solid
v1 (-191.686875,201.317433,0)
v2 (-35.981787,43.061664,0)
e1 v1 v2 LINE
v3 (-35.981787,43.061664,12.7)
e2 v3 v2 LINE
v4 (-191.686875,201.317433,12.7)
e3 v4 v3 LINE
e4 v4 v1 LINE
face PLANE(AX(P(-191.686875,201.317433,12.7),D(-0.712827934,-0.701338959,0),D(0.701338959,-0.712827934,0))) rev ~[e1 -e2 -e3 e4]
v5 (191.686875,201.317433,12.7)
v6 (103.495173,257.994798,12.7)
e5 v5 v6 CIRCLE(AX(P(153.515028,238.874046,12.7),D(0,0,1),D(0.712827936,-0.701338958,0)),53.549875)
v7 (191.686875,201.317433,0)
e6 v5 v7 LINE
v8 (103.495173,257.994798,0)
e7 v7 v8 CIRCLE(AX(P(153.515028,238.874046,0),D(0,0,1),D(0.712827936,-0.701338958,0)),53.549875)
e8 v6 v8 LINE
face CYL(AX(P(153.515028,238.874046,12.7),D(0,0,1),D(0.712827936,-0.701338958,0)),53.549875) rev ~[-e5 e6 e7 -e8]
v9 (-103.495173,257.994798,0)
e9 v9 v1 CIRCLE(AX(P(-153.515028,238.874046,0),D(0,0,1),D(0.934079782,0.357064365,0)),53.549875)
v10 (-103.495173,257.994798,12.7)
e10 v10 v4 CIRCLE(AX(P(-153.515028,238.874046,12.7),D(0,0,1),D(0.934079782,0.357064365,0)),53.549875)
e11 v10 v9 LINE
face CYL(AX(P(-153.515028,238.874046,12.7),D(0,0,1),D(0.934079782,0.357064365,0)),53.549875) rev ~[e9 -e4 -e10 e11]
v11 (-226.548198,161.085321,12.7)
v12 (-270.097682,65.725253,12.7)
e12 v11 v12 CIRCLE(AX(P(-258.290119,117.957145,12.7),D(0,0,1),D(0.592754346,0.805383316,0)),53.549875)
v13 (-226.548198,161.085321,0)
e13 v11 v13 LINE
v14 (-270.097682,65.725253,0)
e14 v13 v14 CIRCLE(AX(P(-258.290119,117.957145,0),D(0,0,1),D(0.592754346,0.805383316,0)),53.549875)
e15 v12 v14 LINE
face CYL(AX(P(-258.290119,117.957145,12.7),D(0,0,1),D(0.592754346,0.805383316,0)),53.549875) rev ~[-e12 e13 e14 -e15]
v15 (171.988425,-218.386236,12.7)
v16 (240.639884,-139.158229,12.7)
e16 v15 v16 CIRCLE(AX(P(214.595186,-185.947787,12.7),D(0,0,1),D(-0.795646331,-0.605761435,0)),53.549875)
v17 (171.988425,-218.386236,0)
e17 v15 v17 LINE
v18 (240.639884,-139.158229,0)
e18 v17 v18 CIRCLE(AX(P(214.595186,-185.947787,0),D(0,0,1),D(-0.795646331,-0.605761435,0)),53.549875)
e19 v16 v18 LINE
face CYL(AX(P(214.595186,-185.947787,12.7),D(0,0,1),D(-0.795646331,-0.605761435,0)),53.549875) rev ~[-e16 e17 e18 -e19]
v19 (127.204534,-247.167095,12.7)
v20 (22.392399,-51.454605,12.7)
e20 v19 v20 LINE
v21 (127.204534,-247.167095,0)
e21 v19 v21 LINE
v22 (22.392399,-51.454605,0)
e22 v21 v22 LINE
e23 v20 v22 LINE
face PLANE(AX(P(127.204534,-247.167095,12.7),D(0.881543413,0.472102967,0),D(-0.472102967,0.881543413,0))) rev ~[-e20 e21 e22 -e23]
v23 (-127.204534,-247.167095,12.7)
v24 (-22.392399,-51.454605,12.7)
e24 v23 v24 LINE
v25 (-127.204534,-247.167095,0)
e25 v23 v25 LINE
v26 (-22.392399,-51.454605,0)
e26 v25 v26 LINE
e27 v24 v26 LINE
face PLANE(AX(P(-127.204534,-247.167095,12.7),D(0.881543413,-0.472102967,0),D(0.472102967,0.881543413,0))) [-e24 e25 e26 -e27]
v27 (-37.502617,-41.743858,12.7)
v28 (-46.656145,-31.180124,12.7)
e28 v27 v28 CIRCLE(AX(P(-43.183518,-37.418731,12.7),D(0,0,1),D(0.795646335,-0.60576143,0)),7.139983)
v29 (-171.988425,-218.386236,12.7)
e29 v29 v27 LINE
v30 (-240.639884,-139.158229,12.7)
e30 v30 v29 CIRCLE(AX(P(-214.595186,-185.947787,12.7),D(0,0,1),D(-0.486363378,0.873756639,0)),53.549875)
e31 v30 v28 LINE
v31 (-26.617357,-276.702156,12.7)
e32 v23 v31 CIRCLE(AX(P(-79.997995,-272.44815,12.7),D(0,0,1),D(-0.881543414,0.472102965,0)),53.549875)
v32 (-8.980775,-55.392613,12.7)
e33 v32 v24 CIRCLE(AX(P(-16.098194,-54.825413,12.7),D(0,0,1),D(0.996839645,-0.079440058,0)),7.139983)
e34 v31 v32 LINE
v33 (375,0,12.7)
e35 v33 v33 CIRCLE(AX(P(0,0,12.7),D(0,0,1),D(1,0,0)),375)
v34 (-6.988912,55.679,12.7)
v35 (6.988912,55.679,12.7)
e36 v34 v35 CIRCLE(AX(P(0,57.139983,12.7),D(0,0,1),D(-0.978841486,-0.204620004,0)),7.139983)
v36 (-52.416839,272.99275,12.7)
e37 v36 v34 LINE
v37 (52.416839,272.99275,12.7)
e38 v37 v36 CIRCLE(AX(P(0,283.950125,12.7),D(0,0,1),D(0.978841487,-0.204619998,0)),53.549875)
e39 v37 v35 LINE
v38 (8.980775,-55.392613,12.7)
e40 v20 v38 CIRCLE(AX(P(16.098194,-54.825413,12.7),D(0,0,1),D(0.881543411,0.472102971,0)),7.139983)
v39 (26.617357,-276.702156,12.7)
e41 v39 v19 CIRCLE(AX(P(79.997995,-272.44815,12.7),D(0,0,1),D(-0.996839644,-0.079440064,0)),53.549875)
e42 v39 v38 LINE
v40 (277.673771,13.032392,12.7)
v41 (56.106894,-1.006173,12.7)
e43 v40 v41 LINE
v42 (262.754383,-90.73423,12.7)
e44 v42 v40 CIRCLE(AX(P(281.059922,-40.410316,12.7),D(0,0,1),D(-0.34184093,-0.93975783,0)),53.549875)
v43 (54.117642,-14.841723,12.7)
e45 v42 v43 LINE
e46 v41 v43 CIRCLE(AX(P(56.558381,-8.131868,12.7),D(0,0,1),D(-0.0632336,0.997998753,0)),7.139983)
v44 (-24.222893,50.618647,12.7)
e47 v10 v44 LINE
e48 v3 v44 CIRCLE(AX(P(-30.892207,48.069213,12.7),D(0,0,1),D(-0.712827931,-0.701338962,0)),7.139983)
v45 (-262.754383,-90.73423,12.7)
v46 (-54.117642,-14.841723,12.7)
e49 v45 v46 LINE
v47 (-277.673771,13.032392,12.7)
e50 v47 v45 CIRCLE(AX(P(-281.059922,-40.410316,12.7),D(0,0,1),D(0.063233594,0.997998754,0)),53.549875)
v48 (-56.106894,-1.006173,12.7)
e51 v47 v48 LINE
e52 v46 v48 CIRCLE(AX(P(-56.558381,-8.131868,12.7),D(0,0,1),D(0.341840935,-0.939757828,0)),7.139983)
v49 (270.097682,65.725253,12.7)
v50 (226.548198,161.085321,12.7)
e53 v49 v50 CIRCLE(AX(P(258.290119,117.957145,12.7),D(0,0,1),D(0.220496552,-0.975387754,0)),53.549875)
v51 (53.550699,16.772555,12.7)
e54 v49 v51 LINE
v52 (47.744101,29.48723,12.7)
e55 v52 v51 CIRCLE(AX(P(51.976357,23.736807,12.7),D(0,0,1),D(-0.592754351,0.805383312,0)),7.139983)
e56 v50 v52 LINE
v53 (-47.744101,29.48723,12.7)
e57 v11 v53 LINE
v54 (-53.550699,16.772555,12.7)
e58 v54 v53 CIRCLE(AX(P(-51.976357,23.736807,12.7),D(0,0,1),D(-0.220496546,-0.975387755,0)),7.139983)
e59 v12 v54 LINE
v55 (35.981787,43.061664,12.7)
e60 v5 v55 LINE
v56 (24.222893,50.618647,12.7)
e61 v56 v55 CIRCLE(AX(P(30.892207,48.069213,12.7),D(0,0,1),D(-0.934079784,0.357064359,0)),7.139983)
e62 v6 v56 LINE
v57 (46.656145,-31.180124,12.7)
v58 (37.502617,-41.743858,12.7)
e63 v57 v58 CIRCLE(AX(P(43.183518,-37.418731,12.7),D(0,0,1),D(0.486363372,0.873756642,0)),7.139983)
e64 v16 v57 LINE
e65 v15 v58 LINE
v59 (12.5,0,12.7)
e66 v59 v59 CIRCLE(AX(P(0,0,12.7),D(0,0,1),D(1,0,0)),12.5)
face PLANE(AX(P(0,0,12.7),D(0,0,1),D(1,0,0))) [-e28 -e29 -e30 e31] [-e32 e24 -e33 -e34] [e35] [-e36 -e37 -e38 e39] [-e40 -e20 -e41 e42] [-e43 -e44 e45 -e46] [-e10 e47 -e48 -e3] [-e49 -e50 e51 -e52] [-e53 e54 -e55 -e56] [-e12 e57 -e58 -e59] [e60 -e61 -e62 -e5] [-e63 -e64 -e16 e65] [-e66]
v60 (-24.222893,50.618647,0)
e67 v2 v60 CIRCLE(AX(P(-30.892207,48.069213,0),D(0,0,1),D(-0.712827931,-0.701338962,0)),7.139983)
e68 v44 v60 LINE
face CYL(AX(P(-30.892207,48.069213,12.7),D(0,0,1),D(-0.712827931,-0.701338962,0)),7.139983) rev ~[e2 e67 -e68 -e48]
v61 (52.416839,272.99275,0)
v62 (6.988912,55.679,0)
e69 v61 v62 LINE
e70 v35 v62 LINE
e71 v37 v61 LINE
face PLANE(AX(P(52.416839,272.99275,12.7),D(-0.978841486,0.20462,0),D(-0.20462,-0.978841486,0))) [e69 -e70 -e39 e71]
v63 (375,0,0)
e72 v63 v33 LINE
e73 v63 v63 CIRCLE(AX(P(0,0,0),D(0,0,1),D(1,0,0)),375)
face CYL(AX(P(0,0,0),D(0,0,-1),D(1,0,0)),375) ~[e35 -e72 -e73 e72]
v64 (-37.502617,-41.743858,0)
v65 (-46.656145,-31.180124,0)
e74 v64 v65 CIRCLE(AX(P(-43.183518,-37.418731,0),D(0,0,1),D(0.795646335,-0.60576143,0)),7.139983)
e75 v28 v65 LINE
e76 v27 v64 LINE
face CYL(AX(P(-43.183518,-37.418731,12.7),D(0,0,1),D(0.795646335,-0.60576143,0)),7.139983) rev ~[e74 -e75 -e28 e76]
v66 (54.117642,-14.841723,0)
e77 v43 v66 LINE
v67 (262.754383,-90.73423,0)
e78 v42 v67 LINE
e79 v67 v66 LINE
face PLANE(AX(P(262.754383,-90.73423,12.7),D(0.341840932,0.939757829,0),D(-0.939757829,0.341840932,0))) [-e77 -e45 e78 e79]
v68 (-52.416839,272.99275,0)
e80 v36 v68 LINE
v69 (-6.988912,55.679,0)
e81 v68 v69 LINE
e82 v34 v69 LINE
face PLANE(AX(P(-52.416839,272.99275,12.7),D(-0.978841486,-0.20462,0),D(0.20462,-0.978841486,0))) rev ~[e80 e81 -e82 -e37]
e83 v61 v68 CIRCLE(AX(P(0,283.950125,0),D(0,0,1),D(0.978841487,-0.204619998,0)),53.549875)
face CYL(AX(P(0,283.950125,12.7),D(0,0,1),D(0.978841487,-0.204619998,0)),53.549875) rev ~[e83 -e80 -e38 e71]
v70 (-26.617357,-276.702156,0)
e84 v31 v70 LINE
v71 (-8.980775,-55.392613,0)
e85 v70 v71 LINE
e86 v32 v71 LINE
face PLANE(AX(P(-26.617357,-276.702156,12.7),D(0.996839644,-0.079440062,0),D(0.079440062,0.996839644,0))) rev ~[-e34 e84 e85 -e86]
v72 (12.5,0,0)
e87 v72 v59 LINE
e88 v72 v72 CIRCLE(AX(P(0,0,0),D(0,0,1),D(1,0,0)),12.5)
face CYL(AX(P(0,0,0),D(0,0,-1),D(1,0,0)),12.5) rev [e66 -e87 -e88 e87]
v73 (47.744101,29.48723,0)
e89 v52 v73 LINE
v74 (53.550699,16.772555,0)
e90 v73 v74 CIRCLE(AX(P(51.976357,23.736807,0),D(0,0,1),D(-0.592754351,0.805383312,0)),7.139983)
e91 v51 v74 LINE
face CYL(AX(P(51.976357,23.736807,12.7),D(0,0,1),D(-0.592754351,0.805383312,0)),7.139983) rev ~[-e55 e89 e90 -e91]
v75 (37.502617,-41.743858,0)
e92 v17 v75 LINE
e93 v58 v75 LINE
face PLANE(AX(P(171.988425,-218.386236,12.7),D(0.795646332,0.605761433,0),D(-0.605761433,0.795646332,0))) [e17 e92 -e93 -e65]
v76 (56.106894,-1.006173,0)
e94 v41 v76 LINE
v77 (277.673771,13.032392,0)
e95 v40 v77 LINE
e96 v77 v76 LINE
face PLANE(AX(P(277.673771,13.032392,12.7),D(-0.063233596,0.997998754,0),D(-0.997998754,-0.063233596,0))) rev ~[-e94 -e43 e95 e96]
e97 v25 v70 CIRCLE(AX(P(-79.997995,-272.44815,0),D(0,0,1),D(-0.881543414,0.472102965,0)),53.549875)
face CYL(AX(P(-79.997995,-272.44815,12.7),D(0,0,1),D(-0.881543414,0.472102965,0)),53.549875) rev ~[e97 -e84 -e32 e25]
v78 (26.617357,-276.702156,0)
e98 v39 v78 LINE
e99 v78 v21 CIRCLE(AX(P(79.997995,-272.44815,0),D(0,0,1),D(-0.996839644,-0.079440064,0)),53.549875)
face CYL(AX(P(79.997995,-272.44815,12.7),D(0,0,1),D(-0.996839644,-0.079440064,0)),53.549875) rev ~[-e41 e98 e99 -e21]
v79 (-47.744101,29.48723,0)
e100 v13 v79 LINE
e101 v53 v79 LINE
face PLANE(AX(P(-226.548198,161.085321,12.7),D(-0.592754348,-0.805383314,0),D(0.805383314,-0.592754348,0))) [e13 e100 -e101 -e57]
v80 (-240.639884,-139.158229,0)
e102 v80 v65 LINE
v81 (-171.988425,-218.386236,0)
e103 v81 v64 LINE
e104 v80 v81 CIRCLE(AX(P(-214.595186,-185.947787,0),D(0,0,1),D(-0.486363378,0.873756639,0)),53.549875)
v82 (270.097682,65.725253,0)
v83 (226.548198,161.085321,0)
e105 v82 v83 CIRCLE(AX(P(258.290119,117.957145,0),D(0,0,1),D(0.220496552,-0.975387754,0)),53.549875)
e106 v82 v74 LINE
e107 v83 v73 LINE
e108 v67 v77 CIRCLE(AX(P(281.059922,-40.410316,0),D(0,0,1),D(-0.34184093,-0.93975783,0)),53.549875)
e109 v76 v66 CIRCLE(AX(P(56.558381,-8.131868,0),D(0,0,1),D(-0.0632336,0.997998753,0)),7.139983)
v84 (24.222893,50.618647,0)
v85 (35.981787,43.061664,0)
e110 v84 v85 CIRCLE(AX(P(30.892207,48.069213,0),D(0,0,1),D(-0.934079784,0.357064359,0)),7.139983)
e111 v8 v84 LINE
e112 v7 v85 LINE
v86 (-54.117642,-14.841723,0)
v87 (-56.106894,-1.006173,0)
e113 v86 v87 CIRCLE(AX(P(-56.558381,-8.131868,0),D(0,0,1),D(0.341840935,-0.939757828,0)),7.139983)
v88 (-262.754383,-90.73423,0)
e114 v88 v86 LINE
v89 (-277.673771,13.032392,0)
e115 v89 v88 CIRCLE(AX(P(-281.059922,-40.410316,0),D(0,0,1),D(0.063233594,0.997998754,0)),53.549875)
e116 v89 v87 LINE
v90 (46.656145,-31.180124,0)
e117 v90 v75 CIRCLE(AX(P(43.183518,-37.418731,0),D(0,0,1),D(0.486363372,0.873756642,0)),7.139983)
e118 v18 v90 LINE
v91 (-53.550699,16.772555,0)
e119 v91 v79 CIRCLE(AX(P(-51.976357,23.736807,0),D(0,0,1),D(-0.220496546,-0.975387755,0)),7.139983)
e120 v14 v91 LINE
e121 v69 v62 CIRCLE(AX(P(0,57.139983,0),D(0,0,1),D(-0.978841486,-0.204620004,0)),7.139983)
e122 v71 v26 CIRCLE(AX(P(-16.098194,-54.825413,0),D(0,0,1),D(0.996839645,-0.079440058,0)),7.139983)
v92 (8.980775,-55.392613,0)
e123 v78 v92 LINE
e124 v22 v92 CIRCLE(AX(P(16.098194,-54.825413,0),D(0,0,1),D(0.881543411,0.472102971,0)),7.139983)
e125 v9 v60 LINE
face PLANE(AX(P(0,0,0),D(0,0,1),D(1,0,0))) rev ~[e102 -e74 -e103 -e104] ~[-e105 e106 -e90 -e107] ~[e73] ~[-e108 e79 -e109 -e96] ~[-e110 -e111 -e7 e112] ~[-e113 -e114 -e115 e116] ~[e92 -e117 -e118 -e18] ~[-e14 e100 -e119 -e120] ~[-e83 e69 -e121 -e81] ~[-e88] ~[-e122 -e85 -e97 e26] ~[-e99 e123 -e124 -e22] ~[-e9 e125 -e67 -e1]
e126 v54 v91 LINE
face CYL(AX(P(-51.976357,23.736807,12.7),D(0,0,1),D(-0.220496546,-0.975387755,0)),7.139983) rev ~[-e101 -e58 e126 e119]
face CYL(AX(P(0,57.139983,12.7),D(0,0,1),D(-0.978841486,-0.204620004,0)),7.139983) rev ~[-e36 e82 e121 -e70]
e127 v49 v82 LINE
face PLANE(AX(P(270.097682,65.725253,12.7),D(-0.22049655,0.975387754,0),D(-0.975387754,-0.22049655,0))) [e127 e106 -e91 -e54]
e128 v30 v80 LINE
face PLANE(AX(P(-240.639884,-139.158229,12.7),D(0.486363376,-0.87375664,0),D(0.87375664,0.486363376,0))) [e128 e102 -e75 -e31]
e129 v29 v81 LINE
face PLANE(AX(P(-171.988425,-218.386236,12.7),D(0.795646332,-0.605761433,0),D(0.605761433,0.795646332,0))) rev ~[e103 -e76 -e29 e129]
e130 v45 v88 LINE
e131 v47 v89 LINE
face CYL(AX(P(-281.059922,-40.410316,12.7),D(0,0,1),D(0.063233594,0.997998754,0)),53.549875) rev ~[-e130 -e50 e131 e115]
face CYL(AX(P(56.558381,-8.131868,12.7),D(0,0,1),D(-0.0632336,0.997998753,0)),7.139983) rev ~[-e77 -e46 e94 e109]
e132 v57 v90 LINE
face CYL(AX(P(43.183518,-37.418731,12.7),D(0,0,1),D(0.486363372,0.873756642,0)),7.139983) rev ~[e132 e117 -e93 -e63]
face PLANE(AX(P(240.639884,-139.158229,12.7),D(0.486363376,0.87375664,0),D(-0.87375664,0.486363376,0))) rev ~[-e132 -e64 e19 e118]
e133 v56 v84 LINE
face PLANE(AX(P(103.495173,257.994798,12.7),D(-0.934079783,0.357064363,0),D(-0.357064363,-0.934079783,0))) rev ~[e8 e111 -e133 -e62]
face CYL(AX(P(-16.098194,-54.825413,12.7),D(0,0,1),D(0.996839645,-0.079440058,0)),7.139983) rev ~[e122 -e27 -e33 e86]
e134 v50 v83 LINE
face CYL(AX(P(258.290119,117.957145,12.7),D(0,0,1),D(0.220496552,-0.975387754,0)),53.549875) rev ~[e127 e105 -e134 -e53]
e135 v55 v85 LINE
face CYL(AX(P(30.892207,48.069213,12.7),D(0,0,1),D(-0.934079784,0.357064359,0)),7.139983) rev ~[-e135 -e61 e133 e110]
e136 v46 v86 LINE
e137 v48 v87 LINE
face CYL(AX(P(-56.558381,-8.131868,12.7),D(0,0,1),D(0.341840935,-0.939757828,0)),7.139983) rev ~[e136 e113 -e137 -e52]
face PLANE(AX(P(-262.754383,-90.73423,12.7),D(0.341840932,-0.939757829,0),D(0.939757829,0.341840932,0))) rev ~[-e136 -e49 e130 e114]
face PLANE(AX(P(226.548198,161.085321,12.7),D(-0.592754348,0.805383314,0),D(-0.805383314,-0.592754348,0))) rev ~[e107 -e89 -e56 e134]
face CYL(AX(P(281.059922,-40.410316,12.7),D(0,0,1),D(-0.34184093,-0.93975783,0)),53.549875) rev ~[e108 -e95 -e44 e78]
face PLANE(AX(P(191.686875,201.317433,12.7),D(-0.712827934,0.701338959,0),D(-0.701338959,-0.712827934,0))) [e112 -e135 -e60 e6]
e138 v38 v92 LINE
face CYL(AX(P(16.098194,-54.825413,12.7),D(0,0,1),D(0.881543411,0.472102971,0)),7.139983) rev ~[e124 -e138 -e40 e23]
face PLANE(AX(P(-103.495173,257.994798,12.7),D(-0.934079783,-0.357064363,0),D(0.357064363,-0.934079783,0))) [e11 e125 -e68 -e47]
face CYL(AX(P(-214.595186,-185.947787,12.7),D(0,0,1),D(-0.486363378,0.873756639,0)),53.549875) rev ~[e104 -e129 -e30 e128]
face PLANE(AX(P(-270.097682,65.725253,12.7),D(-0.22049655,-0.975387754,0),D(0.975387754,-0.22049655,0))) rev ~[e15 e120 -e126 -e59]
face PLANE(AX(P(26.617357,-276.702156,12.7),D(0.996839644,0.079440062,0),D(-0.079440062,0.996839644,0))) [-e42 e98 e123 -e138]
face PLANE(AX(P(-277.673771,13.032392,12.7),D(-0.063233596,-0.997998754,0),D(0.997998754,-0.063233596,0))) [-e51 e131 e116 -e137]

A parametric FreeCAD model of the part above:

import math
import FreeCAD as App
import Part
import Sketcher
Q = App.Units.Quantity

doc = App.newDocument("Part")
params = doc.addObject("Spreadsheet::Sheet", "Params")
for row, (alias, value) in enumerate([
    ("sketch1_diameter", "750 mm"),
    ("sketch1_diameter2", "25 mm"),
    ("pad1_length", "12.7 mm"),
    ("pocket1_length", "12.7 mm"),
], start=1):
    params.set(f"A{row}", alias)
    params.set(f"B{row}", "=" + value)
    params.setAlias(f"B{row}", alias)

body = doc.addObject("PartDesign::Body", "Body")

sketch1 = body.newObject("Sketcher::SketchObject", "Sketch")
sketch1.AttachmentSupport = (doc.getObject("XY_Plane"), [""])
sketch1.MapMode = "FlatFace"
sketch1.addGeometry(Part.Circle(App.Vector(0, 0, 0), App.Vector(0, 0, 1), 375), False)
sketch1.addGeometry(Part.Circle(App.Vector(0, 0, 0), App.Vector(0, 0, 1), 12.5), False)
sketch1.addConstraint(Sketcher.Constraint("Coincident", 0, 3, -1, 1))
sketch1.addConstraint(Sketcher.Constraint("Coincident", 1, 3, -1, 1))
sketch1.addConstraint(Sketcher.Constraint("Diameter", 0, Q("750 mm")))
sketch1.addConstraint(Sketcher.Constraint("Diameter", 1, Q("25 mm")))
sketch1.setExpression("Constraints[2]", "Params.sketch1_diameter")
sketch1.setExpression("Constraints[3]", "Params.sketch1_diameter2")
pad1 = body.newObject("PartDesign::Pad", "Pad")
pad1.Profile = sketch1
pad1.setExpression("Length", "Params.pad1_length")

sketch2 = body.newObject("Sketcher::SketchObject", "Sketch001")
sketch2.AttachmentSupport = (doc.getObject("XY_Plane"), [""])
sketch2.MapMode = "FlatFace"
sketch2.AttachmentOffset = App.Placement(App.Vector(0, 0, 12.7), App.Rotation())
sketch2.addGeometry(Part.ArcOfCircle(Part.Circle(App.Vector(0, 283.950125, 0), App.Vector(0, 0, 1), 53.549875), math.radians(-11.807255), math.radians(191.807255)), False)
sketch2.addGeometry(Part.LineSegment(App.Vector(-52.416839, 272.99275, 0), App.Vector(-6.988912, 55.679, 0)), False)
sketch2.addGeometry(Part.ArcOfCircle(Part.Circle(App.Vector(0, 57.139983, 0), App.Vector(0, 0, 1), 7.139983), math.radians(-168.192745), math.radians(-11.807255)), False)
sketch2.addGeometry(Part.LineSegment(App.Vector(6.988912, 55.679, 0), App.Vector(52.416839, 272.99275, 0)), False)
sketch2.addConstraint(Sketcher.Constraint("Tangent", 0, 2, 1, 1))
sketch2.addConstraint(Sketcher.Constraint("Tangent", 1, 2, 2, 1))
sketch2.addConstraint(Sketcher.Constraint("Tangent", 2, 2, 3, 1))
sketch2.addConstraint(Sketcher.Constraint("Tangent", 3, 2, 0, 1))
sketch2.addConstraint(Sketcher.Constraint("Symmetric", 1, 2, 2, 2, -2))
sketch2.addConstraint(Sketcher.Constraint("DistanceY", -1, 1, 1, 2, Q("55.679 mm")))
sketch2.addConstraint(Sketcher.Constraint("Radius", 0, Q("53.549875 mm")))
sketch2.addConstraint(Sketcher.Constraint("Radius", 2, Q("7.139983 mm")))
sketch2.addConstraint(Sketcher.Constraint("DistanceY", -1, 1, 0, 2, Q("272.99275 mm")))
pocket1 = body.newObject("PartDesign::Pocket", "Pocket")
pocket1.Profile = sketch2
pocket1.setExpression("Length", "Params.pocket1_length")
doc.recompute()

polarpattern = body.newObject("PartDesign::PolarPattern", "PolarPattern")
polarpattern.Originals = [pocket1]
polarpattern.Axis = (doc.getObject("Z_Axis"), [""])
polarpattern.Angle = 360
polarpattern.Occurrences = 11
body.Tip = polarpattern

doc.recompute()
